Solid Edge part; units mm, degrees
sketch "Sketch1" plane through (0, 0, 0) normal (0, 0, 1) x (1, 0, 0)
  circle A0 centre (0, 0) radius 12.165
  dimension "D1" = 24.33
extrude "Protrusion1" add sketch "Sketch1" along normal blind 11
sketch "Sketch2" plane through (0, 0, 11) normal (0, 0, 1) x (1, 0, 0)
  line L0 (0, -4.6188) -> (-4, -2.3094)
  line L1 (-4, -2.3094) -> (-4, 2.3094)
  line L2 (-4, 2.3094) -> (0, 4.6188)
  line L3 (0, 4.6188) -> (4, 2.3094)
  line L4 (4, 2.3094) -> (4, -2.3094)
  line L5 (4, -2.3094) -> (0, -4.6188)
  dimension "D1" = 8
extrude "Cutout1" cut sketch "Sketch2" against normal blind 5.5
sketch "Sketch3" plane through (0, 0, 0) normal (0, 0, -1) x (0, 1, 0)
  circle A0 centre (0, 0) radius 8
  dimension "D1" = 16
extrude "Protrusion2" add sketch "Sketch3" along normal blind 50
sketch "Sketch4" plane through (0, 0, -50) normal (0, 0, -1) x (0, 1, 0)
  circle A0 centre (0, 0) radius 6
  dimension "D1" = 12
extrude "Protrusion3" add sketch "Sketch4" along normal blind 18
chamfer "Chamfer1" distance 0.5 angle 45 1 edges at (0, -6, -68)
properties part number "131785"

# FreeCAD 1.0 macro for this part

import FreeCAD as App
import Part
import Sketcher
from FreeCAD import Vector
Q = App.Units.Quantity


def edges_at(feature, points):
    """Names of the edges that pass closest to the given points."""
    edges = feature.Shape.Edges
    near = lambda p: min(range(len(edges)), key=lambda i: edges[i].distToShape(Part.Vertex(*p))[0])
    return sorted({f"Edge{near(p) + 1}" for p in points})


def add_polygon(sketch, points):
    """Adds a closed chain of lines whose ends are joined by coincident constraints."""
    first, n = sketch.GeometryCount, len(points)
    for a, b in zip(points, points[1:] + points[:1]):
        sketch.addGeometry(Part.LineSegment(App.Vector(*a, 0), App.Vector(*b, 0)), False)
    for i in range(n):
        sketch.addConstraint(Sketcher.Constraint("Coincident", first + i, 2, first + (i + 1) % n, 1))

doc = App.newDocument("Part")
body = doc.addObject("PartDesign::Body", "Body")

# Sketch on XY plane
sketch1 = doc.addObject("Sketcher::SketchObject", "Sketch")
body.addObject(sketch1)
sketch1.AttachmentSupport = (doc.XY_Plane, [""])
sketch1.MapMode = "FlatFace"
sketch1.addGeometry(Part.Circle(Vector(0, 0, 0), Vector(0, 0, 1), 12), False)
sketch1.addConstraint([
    Sketcher.Constraint("Coincident", 0, 3, -1, 1),
    Sketcher.Constraint("Diameter", 0, 24.33),
])
pad1 = doc.addObject("PartDesign::Pad", "Pad")
body.addObject(pad1)
pad1.Profile = sketch1
pad1.Length = 11

# Sketch on XY plane
sketch2 = doc.addObject("Sketcher::SketchObject", "Sketch001")
body.addObject(sketch2)
sketch2.AttachmentSupport = (doc.XY_Plane, [""])
sketch2.MapMode = "FlatFace"
sketch2.AttachmentOffset = App.Placement(Vector(0, 0, 11), App.Rotation())
add_polygon(sketch2, [(-4, -2.3), (0, -4.6), (4, -2.3), (4, 2.3), (0, 4.6), (-4, 2.3)])  # lines 0-5
sketch2.addConstraint([
    Sketcher.Constraint("Vertical", 2),
    Sketcher.Constraint("Vertical", 5),
    Sketcher.Constraint("Symmetric", 0, 2, 3, 2, -1, 1),
    Sketcher.Constraint("Symmetric", 1, 2, 4, 2, -1, 1),
    Sketcher.Constraint("PointOnObject", 0, 2, -2),
    Sketcher.Constraint("Parallel", 0, 3),
    Sketcher.Constraint("Horizontal", 2, 2, 4, 2),
    Sketcher.Constraint("Angle", 0, Q("-30 deg")),
    Sketcher.Constraint("DistanceX", -1, 1, 1, 2, 4.0),
    Sketcher.Constraint("DistanceY", 2, 1, 2, 2, 4.6188),
])
pocket1 = doc.addObject("PartDesign::Pocket", "Pocket")
body.addObject(pocket1)
pocket1.Profile = sketch2
pocket1.Length = 5.5

# Sketch on XY plane
sketch3 = doc.addObject("Sketcher::SketchObject", "Sketch002")
body.addObject(sketch3)
sketch3.AttachmentSupport = (doc.XY_Plane, [""])
sketch3.MapMode = "FlatFace"
sketch3.addGeometry(Part.Circle(Vector(0, 0, 0), Vector(0, 0, 1), 8), False)
sketch3.addConstraint([
    Sketcher.Constraint("Coincident", 0, 3, -1, 1),
    Sketcher.Constraint("Diameter", 0, 16.0),
])
pad2 = doc.addObject("PartDesign::Pad", "Pad001")
body.addObject(pad2)
pad2.Profile = sketch3
pad2.Length = 50
pad2.Reversed = True

# Sketch on XY plane
sketch4 = doc.addObject("Sketcher::SketchObject", "Sketch003")
body.addObject(sketch4)
sketch4.AttachmentSupport = (doc.XY_Plane, [""])
sketch4.MapMode = "FlatFace"
sketch4.AttachmentOffset = App.Placement(Vector(0, 0, -50), App.Rotation())
sketch4.addGeometry(Part.Circle(Vector(0, 0, 0), Vector(0, 0, 1), 6), False)
sketch4.addConstraint([
    Sketcher.Constraint("Coincident", 0, 3, -1, 1),
    Sketcher.Constraint("Diameter", 0, 12.0),
])
pad3 = doc.addObject("PartDesign::Pad", "Pad002")
body.addObject(pad3)
pad3.Profile = sketch4
pad3.Length = 18
pad3.Reversed = True
doc.recompute()

chamfer = doc.addObject("PartDesign::Chamfer", "Chamfer")
body.addObject(chamfer)
chamfer.Base = (pad3, edges_at(pad3, [(0, -6, -68)]))
chamfer.Size = 0.5

doc.recompute()
